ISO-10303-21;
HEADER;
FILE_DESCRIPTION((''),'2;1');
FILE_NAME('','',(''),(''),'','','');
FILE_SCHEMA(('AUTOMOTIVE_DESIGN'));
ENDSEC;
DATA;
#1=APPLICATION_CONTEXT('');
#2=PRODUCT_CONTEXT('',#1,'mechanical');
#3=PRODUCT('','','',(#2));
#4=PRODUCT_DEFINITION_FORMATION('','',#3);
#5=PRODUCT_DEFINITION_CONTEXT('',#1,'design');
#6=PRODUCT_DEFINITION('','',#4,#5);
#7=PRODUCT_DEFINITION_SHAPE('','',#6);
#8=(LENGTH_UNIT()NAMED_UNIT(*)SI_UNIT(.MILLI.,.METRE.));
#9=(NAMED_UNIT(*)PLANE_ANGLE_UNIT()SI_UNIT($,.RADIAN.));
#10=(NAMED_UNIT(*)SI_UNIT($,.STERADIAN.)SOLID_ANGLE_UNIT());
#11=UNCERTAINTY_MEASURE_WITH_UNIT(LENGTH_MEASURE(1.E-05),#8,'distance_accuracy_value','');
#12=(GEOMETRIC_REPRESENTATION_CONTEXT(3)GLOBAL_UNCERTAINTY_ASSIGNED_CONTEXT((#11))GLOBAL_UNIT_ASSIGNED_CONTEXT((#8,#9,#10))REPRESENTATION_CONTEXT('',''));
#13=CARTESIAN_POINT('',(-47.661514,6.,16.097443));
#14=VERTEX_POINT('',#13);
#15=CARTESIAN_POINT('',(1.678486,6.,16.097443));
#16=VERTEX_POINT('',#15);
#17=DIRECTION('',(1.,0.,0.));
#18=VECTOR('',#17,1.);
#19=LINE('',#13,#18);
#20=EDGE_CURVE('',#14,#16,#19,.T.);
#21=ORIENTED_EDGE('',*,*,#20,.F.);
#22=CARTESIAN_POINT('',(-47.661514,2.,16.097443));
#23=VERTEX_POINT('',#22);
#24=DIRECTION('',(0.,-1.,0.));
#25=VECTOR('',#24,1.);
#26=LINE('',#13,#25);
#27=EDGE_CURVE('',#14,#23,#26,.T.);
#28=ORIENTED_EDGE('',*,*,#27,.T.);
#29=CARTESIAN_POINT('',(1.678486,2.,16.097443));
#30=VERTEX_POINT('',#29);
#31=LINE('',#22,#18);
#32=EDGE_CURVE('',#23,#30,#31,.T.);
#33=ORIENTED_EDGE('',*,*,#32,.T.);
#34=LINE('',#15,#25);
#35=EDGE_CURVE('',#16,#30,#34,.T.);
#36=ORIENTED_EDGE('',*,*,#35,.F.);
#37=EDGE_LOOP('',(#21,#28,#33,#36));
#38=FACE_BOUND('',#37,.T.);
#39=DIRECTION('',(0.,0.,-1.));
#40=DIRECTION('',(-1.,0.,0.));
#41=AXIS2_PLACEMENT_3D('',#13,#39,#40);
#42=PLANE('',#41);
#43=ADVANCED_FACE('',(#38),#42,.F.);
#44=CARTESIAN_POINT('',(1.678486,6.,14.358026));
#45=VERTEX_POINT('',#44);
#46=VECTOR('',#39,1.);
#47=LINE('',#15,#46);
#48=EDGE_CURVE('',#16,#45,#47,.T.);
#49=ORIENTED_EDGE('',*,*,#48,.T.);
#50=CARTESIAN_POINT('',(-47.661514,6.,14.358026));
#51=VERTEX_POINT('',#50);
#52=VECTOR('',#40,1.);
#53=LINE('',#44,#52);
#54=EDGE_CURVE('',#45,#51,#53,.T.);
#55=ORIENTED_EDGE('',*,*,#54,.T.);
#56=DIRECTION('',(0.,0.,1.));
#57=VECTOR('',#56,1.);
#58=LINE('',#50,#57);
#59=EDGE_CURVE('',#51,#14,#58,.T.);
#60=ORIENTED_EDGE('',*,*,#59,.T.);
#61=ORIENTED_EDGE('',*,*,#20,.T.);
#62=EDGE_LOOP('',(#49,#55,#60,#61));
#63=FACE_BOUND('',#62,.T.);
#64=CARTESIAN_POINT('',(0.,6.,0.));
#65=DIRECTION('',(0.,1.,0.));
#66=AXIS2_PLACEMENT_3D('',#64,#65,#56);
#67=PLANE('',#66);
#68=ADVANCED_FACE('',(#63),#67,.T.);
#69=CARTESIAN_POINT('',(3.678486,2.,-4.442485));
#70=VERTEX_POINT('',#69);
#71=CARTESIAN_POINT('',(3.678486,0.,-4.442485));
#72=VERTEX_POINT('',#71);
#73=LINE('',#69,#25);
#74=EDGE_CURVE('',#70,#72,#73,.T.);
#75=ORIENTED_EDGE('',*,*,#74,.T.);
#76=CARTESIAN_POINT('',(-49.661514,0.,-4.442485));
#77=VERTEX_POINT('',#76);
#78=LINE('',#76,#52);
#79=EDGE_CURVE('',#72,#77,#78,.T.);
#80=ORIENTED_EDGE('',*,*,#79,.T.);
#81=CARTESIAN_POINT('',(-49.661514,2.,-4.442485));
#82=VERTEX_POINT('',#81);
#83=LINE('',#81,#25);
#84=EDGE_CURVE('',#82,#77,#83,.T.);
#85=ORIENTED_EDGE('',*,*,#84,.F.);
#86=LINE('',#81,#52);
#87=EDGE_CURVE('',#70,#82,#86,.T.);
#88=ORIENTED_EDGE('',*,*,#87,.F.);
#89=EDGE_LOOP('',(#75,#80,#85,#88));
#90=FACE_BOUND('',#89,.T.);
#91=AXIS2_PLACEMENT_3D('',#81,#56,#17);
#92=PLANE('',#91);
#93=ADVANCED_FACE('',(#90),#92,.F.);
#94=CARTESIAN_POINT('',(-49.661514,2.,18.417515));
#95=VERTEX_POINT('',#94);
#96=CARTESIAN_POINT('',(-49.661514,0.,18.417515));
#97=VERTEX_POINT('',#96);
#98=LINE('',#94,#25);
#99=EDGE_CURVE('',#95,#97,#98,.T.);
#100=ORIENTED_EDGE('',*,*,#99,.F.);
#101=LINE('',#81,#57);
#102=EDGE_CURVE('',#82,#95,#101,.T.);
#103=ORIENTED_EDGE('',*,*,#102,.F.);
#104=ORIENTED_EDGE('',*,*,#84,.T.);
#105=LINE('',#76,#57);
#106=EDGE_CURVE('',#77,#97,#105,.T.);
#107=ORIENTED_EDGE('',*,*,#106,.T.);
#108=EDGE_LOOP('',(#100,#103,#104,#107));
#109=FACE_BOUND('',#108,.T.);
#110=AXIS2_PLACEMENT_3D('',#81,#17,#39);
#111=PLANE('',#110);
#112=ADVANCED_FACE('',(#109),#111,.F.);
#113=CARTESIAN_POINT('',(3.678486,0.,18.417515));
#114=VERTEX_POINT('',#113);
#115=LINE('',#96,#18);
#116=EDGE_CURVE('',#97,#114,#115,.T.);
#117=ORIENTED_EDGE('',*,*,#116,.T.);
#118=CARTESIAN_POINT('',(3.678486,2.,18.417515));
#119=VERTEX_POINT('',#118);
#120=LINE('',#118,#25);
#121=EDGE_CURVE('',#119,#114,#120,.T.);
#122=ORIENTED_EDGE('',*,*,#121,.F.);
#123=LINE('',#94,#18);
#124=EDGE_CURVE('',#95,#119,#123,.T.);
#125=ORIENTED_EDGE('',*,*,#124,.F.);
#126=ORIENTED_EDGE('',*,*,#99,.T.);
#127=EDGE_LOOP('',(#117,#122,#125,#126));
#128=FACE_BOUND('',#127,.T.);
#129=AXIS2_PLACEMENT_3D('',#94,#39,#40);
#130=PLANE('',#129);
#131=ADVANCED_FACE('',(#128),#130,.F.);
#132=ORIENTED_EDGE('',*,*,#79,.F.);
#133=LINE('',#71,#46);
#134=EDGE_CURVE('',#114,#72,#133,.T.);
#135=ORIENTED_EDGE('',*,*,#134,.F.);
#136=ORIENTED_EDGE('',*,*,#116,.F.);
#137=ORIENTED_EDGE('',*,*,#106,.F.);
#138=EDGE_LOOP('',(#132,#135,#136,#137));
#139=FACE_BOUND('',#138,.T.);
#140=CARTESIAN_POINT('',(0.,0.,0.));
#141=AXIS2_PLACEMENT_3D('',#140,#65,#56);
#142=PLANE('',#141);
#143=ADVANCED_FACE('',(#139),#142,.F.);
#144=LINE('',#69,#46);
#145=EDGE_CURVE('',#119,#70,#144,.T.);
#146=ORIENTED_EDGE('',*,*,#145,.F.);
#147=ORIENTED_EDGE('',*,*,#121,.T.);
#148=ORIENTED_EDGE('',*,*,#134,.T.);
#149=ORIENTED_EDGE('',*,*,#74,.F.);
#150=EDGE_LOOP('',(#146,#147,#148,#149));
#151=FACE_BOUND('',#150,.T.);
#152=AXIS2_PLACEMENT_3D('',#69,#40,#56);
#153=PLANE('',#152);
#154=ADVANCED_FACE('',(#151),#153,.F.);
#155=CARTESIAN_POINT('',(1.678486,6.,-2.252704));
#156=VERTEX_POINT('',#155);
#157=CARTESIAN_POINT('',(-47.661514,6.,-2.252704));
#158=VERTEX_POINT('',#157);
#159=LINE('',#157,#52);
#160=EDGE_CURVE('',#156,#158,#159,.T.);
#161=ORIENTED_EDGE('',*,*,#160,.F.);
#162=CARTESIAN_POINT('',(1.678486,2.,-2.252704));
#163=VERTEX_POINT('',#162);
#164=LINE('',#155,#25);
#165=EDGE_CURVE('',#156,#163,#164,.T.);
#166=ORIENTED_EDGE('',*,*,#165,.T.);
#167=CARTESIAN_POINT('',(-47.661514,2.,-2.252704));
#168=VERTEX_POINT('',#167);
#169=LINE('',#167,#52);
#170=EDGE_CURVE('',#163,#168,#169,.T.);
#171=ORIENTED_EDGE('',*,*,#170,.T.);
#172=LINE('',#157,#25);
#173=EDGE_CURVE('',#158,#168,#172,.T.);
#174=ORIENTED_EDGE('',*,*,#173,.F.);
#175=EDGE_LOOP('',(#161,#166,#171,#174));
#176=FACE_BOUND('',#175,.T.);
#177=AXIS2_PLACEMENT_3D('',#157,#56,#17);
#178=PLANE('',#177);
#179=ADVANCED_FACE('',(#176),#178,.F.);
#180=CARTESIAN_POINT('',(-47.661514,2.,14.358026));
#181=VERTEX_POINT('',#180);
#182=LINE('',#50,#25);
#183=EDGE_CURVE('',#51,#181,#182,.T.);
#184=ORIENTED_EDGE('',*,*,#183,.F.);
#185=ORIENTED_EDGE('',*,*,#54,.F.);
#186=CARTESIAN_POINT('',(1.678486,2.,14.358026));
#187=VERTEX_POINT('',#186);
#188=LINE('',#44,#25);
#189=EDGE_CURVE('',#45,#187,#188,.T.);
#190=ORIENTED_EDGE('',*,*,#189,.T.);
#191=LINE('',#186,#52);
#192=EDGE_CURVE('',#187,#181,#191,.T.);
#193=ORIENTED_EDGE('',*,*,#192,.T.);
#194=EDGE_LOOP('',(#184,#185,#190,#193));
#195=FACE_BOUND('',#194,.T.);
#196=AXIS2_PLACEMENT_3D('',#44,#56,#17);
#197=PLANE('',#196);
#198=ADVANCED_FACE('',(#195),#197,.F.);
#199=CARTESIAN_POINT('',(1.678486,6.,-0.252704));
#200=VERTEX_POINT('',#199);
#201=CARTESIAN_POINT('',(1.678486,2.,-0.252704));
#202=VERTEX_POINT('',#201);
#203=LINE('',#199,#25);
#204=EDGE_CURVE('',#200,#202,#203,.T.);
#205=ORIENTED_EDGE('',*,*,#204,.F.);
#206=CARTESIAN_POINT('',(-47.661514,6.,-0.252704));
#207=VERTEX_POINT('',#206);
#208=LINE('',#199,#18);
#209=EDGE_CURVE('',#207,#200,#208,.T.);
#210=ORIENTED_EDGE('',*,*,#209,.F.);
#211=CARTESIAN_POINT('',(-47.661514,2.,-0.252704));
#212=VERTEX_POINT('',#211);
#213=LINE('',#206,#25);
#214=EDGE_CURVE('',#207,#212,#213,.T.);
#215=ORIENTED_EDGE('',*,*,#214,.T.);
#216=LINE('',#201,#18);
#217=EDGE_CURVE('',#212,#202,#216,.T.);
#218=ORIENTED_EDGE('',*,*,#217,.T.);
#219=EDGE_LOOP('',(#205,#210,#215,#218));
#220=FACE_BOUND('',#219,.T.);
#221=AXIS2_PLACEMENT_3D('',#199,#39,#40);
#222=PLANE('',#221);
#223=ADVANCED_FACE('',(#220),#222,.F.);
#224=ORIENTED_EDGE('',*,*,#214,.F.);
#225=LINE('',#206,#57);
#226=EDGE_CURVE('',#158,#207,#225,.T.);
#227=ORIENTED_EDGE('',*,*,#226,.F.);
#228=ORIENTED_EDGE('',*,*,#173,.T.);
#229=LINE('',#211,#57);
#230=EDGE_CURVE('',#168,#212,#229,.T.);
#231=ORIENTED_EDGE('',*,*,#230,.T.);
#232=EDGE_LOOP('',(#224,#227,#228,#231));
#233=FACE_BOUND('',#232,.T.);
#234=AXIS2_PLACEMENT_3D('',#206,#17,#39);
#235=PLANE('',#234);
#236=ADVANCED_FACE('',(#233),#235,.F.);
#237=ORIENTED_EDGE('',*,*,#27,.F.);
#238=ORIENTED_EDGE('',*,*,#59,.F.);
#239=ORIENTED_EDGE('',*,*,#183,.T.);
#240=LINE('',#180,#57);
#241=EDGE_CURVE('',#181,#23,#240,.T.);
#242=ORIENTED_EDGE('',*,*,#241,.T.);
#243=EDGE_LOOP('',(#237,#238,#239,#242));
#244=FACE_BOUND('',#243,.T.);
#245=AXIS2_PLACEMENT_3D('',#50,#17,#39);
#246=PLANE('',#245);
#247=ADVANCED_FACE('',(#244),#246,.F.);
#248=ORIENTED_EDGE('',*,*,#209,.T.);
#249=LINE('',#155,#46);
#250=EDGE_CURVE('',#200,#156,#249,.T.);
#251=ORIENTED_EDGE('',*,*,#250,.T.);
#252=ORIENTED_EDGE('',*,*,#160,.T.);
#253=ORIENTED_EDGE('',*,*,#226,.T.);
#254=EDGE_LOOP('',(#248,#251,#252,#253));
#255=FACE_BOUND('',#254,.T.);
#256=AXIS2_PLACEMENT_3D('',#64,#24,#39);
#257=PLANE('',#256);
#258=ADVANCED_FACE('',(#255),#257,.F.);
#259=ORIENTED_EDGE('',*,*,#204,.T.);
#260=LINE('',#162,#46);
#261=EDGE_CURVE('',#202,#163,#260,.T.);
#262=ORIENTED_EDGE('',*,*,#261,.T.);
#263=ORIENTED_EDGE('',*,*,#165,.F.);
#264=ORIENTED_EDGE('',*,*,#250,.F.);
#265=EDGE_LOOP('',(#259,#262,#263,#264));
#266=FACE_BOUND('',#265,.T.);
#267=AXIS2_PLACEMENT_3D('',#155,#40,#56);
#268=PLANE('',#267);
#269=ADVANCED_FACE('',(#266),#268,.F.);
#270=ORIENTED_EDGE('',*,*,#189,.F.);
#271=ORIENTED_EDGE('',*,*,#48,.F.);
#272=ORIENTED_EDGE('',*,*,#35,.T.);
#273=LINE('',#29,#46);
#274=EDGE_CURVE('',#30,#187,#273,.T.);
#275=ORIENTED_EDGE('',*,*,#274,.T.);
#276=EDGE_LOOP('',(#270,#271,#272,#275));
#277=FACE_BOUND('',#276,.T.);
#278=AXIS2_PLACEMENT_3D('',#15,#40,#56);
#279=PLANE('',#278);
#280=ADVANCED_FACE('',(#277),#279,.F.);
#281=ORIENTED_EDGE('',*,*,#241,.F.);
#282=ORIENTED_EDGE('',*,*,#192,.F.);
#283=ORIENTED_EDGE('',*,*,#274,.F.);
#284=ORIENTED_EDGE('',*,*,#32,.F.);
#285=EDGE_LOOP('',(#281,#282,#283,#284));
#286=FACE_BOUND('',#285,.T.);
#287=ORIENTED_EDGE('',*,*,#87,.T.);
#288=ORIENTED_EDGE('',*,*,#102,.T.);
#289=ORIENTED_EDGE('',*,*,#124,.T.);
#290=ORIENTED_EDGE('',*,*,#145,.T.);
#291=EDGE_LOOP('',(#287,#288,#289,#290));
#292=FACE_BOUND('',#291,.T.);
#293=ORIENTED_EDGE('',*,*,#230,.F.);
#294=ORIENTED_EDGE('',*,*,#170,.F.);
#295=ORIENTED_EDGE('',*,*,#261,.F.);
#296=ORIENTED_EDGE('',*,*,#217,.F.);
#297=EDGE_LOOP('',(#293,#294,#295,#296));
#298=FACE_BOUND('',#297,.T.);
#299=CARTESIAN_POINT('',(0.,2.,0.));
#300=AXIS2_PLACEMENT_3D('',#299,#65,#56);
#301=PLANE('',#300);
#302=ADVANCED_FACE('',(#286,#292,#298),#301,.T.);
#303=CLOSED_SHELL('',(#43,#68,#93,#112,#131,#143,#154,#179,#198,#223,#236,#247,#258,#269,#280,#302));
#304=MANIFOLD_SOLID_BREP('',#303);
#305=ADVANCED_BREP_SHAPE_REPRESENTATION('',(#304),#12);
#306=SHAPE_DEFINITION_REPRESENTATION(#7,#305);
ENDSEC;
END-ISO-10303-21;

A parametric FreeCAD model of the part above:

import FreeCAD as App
import Part
import Sketcher
from FreeCAD import Vector
Q = App.Units.Quantity


def add_polygon(sketch, points):
    """Adds a closed chain of lines whose ends are joined by coincident constraints."""
    first, n = sketch.GeometryCount, len(points)
    for a, b in zip(points, points[1:] + points[:1]):
        sketch.addGeometry(Part.LineSegment(App.Vector(*a, 0), App.Vector(*b, 0)), False)
    for i in range(n):
        sketch.addConstraint(Sketcher.Constraint("Coincident", first + i, 2, first + (i + 1) % n, 1))

doc = App.newDocument("Part")
body = doc.addObject("PartDesign::Body", "Body")

sketch1 = doc.addObject("Sketcher::SketchObject", "Sketch")
body.addObject(sketch1)
sketch1.AttachmentSupport = (doc.XZ_Plane, [""])
sketch1.MapMode = "FlatFace"
add_polygon(sketch1, [(-50, -4), (-50, 18), (4, 18), (4, -4)])
sketch1.addConstraint(Sketcher.Constraint("Vertical", 0))
sketch1.addConstraint(Sketcher.Constraint("Horizontal", 1))
sketch1.addConstraint(Sketcher.Constraint("Vertical", 2))
sketch1.addConstraint(Sketcher.Constraint("Horizontal", 3))
sketch1.addConstraint(Sketcher.Constraint("DistanceX", 1, 1, 1, 2, Q("53.34 mm")))
sketch1.addConstraint(Sketcher.Constraint("DistanceY", 0, 1, 0, 2, Q("22.86 mm")))
sketch1.addConstraint(Sketcher.Constraint("DistanceX", 0, 2, -1, 1, Q("49.661514 mm")))
sketch1.addConstraint(Sketcher.Constraint("DistanceY", -1, 1, 0, 2, Q("18.417515 mm")))
pad1 = doc.addObject("PartDesign::Pad", "Pad")
body.addObject(pad1)
pad1.Profile = sketch1
pad1.Length = 2
pad1.Reversed = True

sketch2 = doc.addObject("Sketcher::SketchObject", "Sketch001")
body.addObject(sketch2)
sketch2.AttachmentSupport = (doc.XZ_Plane, [""])
sketch2.MapMode = "FlatFace"
sketch2.AttachmentOffset = App.Placement(Vector(0, 0, -2), App.Rotation())
add_polygon(sketch2, [(-47.7, -2.3), (-47.7, -0.3), (1.7, -0.3), (1.7, -2.3)])
add_polygon(sketch2, [(-47.7, 14.4), (-47.7, 16.1), (1.7, 16.1), (1.7, 14.4)])
sketch2.addConstraint(Sketcher.Constraint("Vertical", 0))
sketch2.addConstraint(Sketcher.Constraint("Horizontal", 1))
sketch2.addConstraint(Sketcher.Constraint("Vertical", 2))
sketch2.addConstraint(Sketcher.Constraint("Horizontal", 3))
sketch2.addConstraint(Sketcher.Constraint("Vertical", 4))
sketch2.addConstraint(Sketcher.Constraint("Horizontal", 5))
sketch2.addConstraint(Sketcher.Constraint("Vertical", 6))
sketch2.addConstraint(Sketcher.Constraint("Horizontal", 7))
sketch2.addConstraint(Sketcher.Constraint("Vertical", 3, 2, 4, 2))
sketch2.addConstraint(Sketcher.Constraint("Vertical", 2, 2, 5, 2))
sketch2.addConstraint(Sketcher.Constraint("DistanceY", 0, 1, 0, 2, Q("2 mm")))
sketch2.addConstraint(Sketcher.Constraint("DistanceX", 1, 1, 1, 2, Q("49.34 mm")))
sketch2.addConstraint(Sketcher.Constraint("DistanceY", 4, 1, 4, 2, Q("1.739418 mm")))
sketch2.addConstraint(Sketcher.Constraint("DistanceY", 1, 2, 6, 2, Q("14.61073 mm")))
sketch2.addConstraint(Sketcher.Constraint("DistanceX", 0, 2, -1, 1, Q("47.661514 mm")))
sketch2.addConstraint(Sketcher.Constraint("DistanceY", 0, 2, -1, 1, Q("0.252704 mm")))
pad2 = doc.addObject("PartDesign::Pad", "Pad001")
body.addObject(pad2)
pad2.Profile = sketch2
pad2.Length = 4
pad2.Reversed = True

doc.recompute()
